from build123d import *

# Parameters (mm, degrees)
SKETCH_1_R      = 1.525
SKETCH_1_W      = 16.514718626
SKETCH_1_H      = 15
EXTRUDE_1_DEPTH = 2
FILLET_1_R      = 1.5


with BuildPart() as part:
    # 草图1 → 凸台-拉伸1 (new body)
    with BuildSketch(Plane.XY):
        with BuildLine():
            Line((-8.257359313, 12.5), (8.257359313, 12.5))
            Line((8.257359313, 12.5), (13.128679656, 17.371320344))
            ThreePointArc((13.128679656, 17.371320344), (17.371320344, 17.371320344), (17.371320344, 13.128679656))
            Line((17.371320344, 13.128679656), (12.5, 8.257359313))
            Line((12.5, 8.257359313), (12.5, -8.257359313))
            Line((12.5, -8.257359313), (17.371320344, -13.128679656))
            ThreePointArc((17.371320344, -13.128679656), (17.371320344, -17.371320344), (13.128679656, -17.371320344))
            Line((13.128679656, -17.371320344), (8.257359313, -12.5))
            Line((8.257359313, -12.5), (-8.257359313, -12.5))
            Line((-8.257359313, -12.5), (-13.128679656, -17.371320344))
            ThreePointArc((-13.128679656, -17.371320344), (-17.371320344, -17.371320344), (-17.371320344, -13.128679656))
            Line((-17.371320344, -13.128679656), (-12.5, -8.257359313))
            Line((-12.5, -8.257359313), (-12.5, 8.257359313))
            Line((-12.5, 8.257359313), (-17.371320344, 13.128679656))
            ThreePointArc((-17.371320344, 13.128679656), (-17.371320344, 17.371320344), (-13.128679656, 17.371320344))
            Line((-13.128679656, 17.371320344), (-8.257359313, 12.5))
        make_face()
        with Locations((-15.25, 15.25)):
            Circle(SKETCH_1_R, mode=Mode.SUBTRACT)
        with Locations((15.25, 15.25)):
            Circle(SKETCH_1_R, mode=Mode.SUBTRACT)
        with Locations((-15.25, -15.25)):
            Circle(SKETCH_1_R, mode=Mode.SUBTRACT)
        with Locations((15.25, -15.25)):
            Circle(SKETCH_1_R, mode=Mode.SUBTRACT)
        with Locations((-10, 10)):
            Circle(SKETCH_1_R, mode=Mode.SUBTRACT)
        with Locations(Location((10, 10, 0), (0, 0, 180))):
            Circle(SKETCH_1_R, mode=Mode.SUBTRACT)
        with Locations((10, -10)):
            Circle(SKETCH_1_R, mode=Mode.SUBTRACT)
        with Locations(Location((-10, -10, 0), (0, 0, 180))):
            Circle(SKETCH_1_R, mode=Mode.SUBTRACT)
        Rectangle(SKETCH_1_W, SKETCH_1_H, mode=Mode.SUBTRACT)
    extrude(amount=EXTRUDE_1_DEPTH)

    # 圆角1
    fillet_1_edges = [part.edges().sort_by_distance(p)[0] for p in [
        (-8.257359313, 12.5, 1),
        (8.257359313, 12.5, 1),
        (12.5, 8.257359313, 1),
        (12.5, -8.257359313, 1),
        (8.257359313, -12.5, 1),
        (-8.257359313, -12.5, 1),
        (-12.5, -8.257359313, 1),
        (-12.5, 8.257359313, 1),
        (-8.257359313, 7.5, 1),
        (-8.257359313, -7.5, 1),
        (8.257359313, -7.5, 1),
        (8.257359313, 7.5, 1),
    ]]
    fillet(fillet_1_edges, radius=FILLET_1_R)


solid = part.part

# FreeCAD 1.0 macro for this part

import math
import FreeCAD as App
import Part
import Sketcher
from FreeCAD import Vector


def edges_at(feature, points):
    """Names of the edges that pass closest to the given points."""
    edges = feature.Shape.Edges
    near = lambda p: min(range(len(edges)), key=lambda i: edges[i].distToShape(Part.Vertex(*p))[0])
    return sorted({f"Edge{near(p) + 1}" for p in points})


def add_polygon(sketch, points):
    """Adds a closed chain of lines whose ends are joined by coincident constraints."""
    first, n = sketch.GeometryCount, len(points)
    for a, b in zip(points, points[1:] + points[:1]):
        sketch.addGeometry(Part.LineSegment(App.Vector(*a, 0), App.Vector(*b, 0)), False)
    for i in range(n):
        sketch.addConstraint(Sketcher.Constraint("Coincident", first + i, 2, first + (i + 1) % n, 1))

doc = App.newDocument("Part")
body = doc.addObject("PartDesign::Body", "Body")

# Sketch on XY plane
sketch1 = body.newObject("Sketcher::SketchObject", "Sketch")
sketch1.AttachmentSupport = (doc.getObject("XY_Plane"), [""])
sketch1.MapMode = "FlatFace"
sketch1.addGeometry(Part.LineSegment(Vector(8.3, 12.5, 0), Vector(-8.3, 12.5, 0)), False)  # 0
sketch1.addGeometry(Part.LineSegment(Vector(-8.3, 12.5, 0), Vector(-13.1, 17.4, 0)), False)  # 1
sketch1.addGeometry(Part.ArcOfCircle(Part.Circle(Vector(-15.2, 15.2, 0), Vector(0, 0, 1), 3), math.radians(45), math.radians(225)), False)  # 2
sketch1.addGeometry(Part.LineSegment(Vector(-17.4, 13.1, 0), Vector(-12.5, 8.3, 0)), False)  # 3
sketch1.addGeometry(Part.LineSegment(Vector(-12.5, 8.3, 0), Vector(-12.5, -8.3, 0)), False)  # 4
sketch1.addGeometry(Part.LineSegment(Vector(-12.5, -8.3, 0), Vector(-17.4, -13.1, 0)), False)  # 5
sketch1.addGeometry(Part.ArcOfCircle(Part.Circle(Vector(-15.2, -15.2, 0), Vector(0, 0, 1), 3), math.radians(135), math.radians(315)), False)  # 6
sketch1.addGeometry(Part.LineSegment(Vector(-13.1, -17.4, 0), Vector(-8.3, -12.5, 0)), False)  # 7
sketch1.addGeometry(Part.LineSegment(Vector(-8.3, -12.5, 0), Vector(8.3, -12.5, 0)), False)  # 8
sketch1.addGeometry(Part.LineSegment(Vector(8.3, -12.5, 0), Vector(13.1, -17.4, 0)), False)  # 9
sketch1.addGeometry(Part.ArcOfCircle(Part.Circle(Vector(15.2, -15.2, 0), Vector(0, 0, 1), 3), math.radians(-135), math.radians(45)), False)  # 10
sketch1.addGeometry(Part.LineSegment(Vector(17.4, -13.1, 0), Vector(12.5, -8.3, 0)), False)  # 11
sketch1.addGeometry(Part.LineSegment(Vector(12.5, -8.3, 0), Vector(12.5, 8.3, 0)), False)  # 12
sketch1.addGeometry(Part.LineSegment(Vector(12.5, 8.3, 0), Vector(17.4, 13.1, 0)), False)  # 13
sketch1.addGeometry(Part.ArcOfCircle(Part.Circle(Vector(15.2, 15.2, 0), Vector(0, 0, 1), 3), math.radians(-45), math.radians(135)), False)  # 14
sketch1.addGeometry(Part.LineSegment(Vector(13.1, 17.4, 0), Vector(8.3, 12.5, 0)), False)  # 15
sketch1.addGeometry(Part.Circle(Vector(15.2, -15.2, 0), Vector(0, 0, 1), 1.5), False)  # 16
sketch1.addGeometry(Part.Circle(Vector(10, -10, 0), Vector(0, 0, 1), 1.5), False)  # 17
sketch1.addGeometry(Part.Circle(Vector(-15.2, -15.2, 0), Vector(0, 0, 1), 1.5), False)  # 18
sketch1.addGeometry(Part.Circle(Vector(-10, -10, 0), Vector(0, 0, 1), 1.5), False)  # 19
sketch1.addGeometry(Part.Circle(Vector(10, 10, 0), Vector(0, 0, 1), 1.5), False)  # 20
sketch1.addGeometry(Part.Circle(Vector(15.2, 15.2, 0), Vector(0, 0, 1), 1.5), False)  # 21
add_polygon(sketch1, [(-8.3, -7.5), (-8.3, 7.5), (8.3, 7.5), (8.3, -7.5)])  # lines 22-25
sketch1.addGeometry(Part.Circle(Vector(-10, 10, 0), Vector(0, 0, 1), 1.5), False)  # 26
sketch1.addGeometry(Part.Circle(Vector(-15.2, 15.2, 0), Vector(0, 0, 1), 1.5), False)  # 27
sketch1.addConstraint(Sketcher.Constraint("Coincident", 0, 2, 1, 1))
sketch1.addConstraint(Sketcher.Constraint("Tangent", 1, 2, 2, 1))
sketch1.addConstraint(Sketcher.Constraint("Tangent", 2, 2, 3, 1))
sketch1.addConstraint(Sketcher.Constraint("Coincident", 3, 2, 4, 1))
sketch1.addConstraint(Sketcher.Constraint("Coincident", 4, 2, 5, 1))
sketch1.addConstraint(Sketcher.Constraint("Tangent", 5, 2, 6, 1))
sketch1.addConstraint(Sketcher.Constraint("Tangent", 6, 2, 7, 1))
sketch1.addConstraint(Sketcher.Constraint("Coincident", 7, 2, 8, 1))
sketch1.addConstraint(Sketcher.Constraint("Coincident", 8, 2, 9, 1))
sketch1.addConstraint(Sketcher.Constraint("Tangent", 9, 2, 10, 1))
sketch1.addConstraint(Sketcher.Constraint("Tangent", 10, 2, 11, 1))
sketch1.addConstraint(Sketcher.Constraint("Coincident", 11, 2, 12, 1))
sketch1.addConstraint(Sketcher.Constraint("Coincident", 12, 2, 13, 1))
sketch1.addConstraint(Sketcher.Constraint("Tangent", 13, 2, 14, 1))
sketch1.addConstraint(Sketcher.Constraint("Tangent", 14, 2, 15, 1))
sketch1.addConstraint(Sketcher.Constraint("Coincident", 15, 2, 0, 1))
sketch1.addConstraint(Sketcher.Constraint("Horizontal", 0))
sketch1.addConstraint(Sketcher.Constraint("Vertical", 4))
sketch1.addConstraint(Sketcher.Constraint("Horizontal", 8))
sketch1.addConstraint(Sketcher.Constraint("Vertical", 12))
sketch1.addConstraint(Sketcher.Constraint("Vertical", 22))
sketch1.addConstraint(Sketcher.Constraint("Horizontal", 23))
sketch1.addConstraint(Sketcher.Constraint("Vertical", 24))
sketch1.addConstraint(Sketcher.Constraint("Horizontal", 25))
sketch1.addConstraint(Sketcher.Constraint("Coincident", 16, 3, 10, 3))
sketch1.addConstraint(Sketcher.Constraint("Coincident", 18, 3, 6, 3))
sketch1.addConstraint(Sketcher.Constraint("Coincident", 21, 3, 14, 3))
sketch1.addConstraint(Sketcher.Constraint("Coincident", 27, 3, 2, 3))
sketch1.addConstraint(Sketcher.Constraint("Equal", 2, 6))
sketch1.addConstraint(Sketcher.Constraint("Equal", 6, 10))
sketch1.addConstraint(Sketcher.Constraint("Equal", 10, 14))
sketch1.addConstraint(Sketcher.Constraint("Equal", 16, 17))
sketch1.addConstraint(Sketcher.Constraint("Equal", 17, 18))
sketch1.addConstraint(Sketcher.Constraint("Equal", 18, 19))
sketch1.addConstraint(Sketcher.Constraint("Equal", 19, 20))
sketch1.addConstraint(Sketcher.Constraint("Equal", 20, 21))
sketch1.addConstraint(Sketcher.Constraint("Equal", 21, 26))
sketch1.addConstraint(Sketcher.Constraint("Equal", 26, 27))
sketch1.addConstraint(Sketcher.Constraint("Symmetric", 2, 3, 10, 3, -1, 1))
sketch1.addConstraint(Sketcher.Constraint("Symmetric", 6, 3, 14, 3, -1, 1))
sketch1.addConstraint(Sketcher.Constraint("Symmetric", 19, 3, 20, 3, -1, 1))
sketch1.addConstraint(Sketcher.Constraint("Symmetric", 17, 3, 26, 3, -1, 1))
sketch1.addConstraint(Sketcher.Constraint("Symmetric", 0, 2, 8, 2, -1, 1))
sketch1.addConstraint(Sketcher.Constraint("Symmetric", 3, 2, 11, 2, -1, 1))
sketch1.addConstraint(Sketcher.Constraint("Symmetric", 22, 2, 24, 2, -1, 1))
sketch1.addConstraint(Sketcher.Constraint("Symmetric", 6, 3, 10, 3, -2))
sketch1.addConstraint(Sketcher.Constraint("Symmetric", 17, 3, 19, 3, -2))
sketch1.addConstraint(Sketcher.Constraint("Parallel", 1, 3))
sketch1.addConstraint(Sketcher.Constraint("Perpendicular", 3, 5))
sketch1.addConstraint(Sketcher.Constraint("Parallel", 5, 7))
sketch1.addConstraint(Sketcher.Constraint("Perpendicular", 11, 13))
sketch1.addConstraint(Sketcher.Constraint("Parallel", 13, 15))
sketch1.addConstraint(Sketcher.Constraint("Horizontal", 6, 2, 9, 2))
sketch1.addConstraint(Sketcher.Constraint("Vertical", 7, 2, 22, 2))
sketch1.addConstraint(Sketcher.Constraint("Equal", 25, 4))
sketch1.addConstraint(Sketcher.Constraint("Equal", 1, 3))
sketch1.addConstraint(Sketcher.Constraint("Radius", 2, 3.0))
sketch1.addConstraint(Sketcher.Constraint("Diameter", 16, 3.05))
sketch1.addConstraint(Sketcher.Constraint("DistanceY", 22, 1, 22, 2, 15.0))
sketch1.addConstraint(Sketcher.Constraint("DistanceX", -1, 1, 17, 3, 10.0))
sketch1.addConstraint(Sketcher.Constraint("DistanceY", 17, 3, -1, 1, 10.0))
sketch1.addConstraint(Sketcher.Constraint("DistanceY", 22, 2, 0, 2, 5.0))
sketch1.addConstraint(Sketcher.Constraint("DistanceY", 6, 3, 2, 3, 30.5))
pad1 = body.newObject("PartDesign::Pad", "Pad")
pad1.Profile = sketch1
pad1.Length = 2
doc.recompute()

fillet = body.newObject("PartDesign::Fillet", "Fillet")
fillet.Base = (pad1, edges_at(pad1, [
    (-8.257, 12.5, 1),
    (8.257, 12.5, 1),
    (12.5, 8.257, 1),
    (12.5, -8.257, 1),
    (8.257, -12.5, 1),
    (-8.257, -12.5, 1),
    (-12.5, -8.257, 1),
    (-12.5, 8.257, 1),
    (-8.257, 7.5, 1),
    (-8.257, -7.5, 1),
    (8.257, -7.5, 1),
    (8.257, 7.5, 1),
]))
fillet.Radius = 1.5

doc.recompute()
